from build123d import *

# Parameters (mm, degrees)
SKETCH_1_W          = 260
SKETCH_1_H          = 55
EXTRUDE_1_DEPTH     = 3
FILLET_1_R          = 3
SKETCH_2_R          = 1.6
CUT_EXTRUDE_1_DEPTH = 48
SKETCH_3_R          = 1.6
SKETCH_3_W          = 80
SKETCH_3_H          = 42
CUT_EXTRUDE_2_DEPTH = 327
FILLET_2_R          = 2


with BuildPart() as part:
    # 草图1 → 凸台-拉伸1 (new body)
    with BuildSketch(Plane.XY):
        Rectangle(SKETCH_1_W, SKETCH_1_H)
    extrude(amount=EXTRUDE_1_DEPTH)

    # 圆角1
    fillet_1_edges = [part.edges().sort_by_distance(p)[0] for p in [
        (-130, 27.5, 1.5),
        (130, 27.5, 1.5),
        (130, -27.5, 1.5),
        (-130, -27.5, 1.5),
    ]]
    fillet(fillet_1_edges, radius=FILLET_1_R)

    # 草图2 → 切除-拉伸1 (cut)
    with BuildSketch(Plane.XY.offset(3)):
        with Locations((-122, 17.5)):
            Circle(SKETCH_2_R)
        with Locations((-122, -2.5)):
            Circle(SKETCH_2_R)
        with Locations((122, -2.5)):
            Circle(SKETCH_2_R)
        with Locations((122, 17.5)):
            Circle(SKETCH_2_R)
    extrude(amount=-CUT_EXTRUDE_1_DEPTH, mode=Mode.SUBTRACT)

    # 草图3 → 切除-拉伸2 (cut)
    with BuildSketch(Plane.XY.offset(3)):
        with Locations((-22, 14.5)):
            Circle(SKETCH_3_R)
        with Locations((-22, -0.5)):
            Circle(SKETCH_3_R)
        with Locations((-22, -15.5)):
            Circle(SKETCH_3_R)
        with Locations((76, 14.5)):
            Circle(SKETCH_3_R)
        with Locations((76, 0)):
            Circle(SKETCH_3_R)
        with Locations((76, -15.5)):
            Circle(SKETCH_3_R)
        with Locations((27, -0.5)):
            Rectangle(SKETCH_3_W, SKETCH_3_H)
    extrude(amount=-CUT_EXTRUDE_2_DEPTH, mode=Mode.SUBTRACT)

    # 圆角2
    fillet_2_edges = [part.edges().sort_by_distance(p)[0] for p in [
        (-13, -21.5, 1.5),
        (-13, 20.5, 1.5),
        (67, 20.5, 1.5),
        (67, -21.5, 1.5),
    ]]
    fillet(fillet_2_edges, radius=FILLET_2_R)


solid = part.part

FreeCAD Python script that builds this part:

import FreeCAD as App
import Part
import Sketcher

V = App.Vector
Q = App.Units.Quantity


def edges_at(feature, points):
    """Names of the edges that pass closest to the given points."""
    edges = feature.Shape.Edges
    near = lambda p: min(range(len(edges)), key=lambda i: edges[i].distToShape(Part.Vertex(*p))[0])
    return sorted({f"Edge{near(p) + 1}" for p in points})

doc = App.newDocument("Part")
params = doc.addObject("Spreadsheet::Sheet", "Params")
for row, (alias, value) in enumerate([
    ("sketch1_width", "260 mm"),
    ("sketch1_height", "55 mm"),
    ("pad1_length", "3 mm"),
    ("fillet_radius", "3 mm"),
    ("sketch2_diameter", "3.2 mm"),
    ("pocket1_length", "48 mm"),
    ("sketch3_diameter", "3.2 mm"),
    ("sketch3_width", "80 mm"),
    ("sketch3_height", "42 mm"),
    ("pocket2_length", "327 mm"),
    ("fillet2_radius", "2 mm"),
], start=1):
    params.set(f"A{row}", alias)
    params.set(f"B{row}", "=" + value)
    params.setAlias(f"B{row}", alias)

body = doc.addObject("PartDesign::Body", "Body")

# Sketch on XY plane
sketch1 = body.newObject("Sketcher::SketchObject", "Sketch")
sketch1.AttachmentSupport = (doc.getObject("XY_Plane"), [""])
sketch1.MapMode = "FlatFace"
sketch1.addGeometry(Part.LineSegment(V(-130, 28, 0), V(-130, -28, 0)), False)
sketch1.addGeometry(Part.LineSegment(V(-130, -28, 0), V(130, -28, 0)), False)
sketch1.addGeometry(Part.LineSegment(V(130, -28, 0), V(130, 28, 0)), False)
sketch1.addGeometry(Part.LineSegment(V(130, 28, 0), V(-130, 28, 0)), False)
sketch1.addConstraint(Sketcher.Constraint("Coincident", 0, 2, 1, 1))
sketch1.addConstraint(Sketcher.Constraint("Coincident", 1, 2, 2, 1))
sketch1.addConstraint(Sketcher.Constraint("Coincident", 2, 2, 3, 1))
sketch1.addConstraint(Sketcher.Constraint("Coincident", 3, 2, 0, 1))
sketch1.addConstraint(Sketcher.Constraint("Vertical", 0))
sketch1.addConstraint(Sketcher.Constraint("Horizontal", 1))
sketch1.addConstraint(Sketcher.Constraint("Vertical", 2))
sketch1.addConstraint(Sketcher.Constraint("Horizontal", 3))
sketch1.addConstraint(Sketcher.Constraint("Symmetric", 0, 2, 2, 2, -1, 1))
sketch1.addConstraint(Sketcher.Constraint("DistanceX", 1, 1, 1, 2, Q("260 mm")))
sketch1.addConstraint(Sketcher.Constraint("DistanceY", 0, 2, 0, 1, Q("55 mm")))
sketch1.setExpression("Constraints[9]", "Params.sketch1_width")
sketch1.setExpression("Constraints[10]", "Params.sketch1_height")
pad1 = body.newObject("PartDesign::Pad", "Pad")
pad1.Profile = sketch1
pad1.setExpression("Length", "Params.pad1_length")
doc.recompute()

fillet = body.newObject("PartDesign::Fillet", "Fillet")
fillet.Base = (pad1, edges_at(pad1, [
    (-130, 27.5, 1.5),
    (130, 27.5, 1.5),
    (130, -27.5, 1.5),
    (-130, -27.5, 1.5),
]))
fillet.setExpression("Radius", "Params.fillet_radius")

# Sketch on XY plane
sketch2 = body.newObject("Sketcher::SketchObject", "Sketch001")
sketch2.AttachmentSupport = (doc.getObject("XY_Plane"), [""])
sketch2.MapMode = "FlatFace"
sketch2.AttachmentOffset = App.Placement(V(0, 0, 3), App.Rotation())
sketch2.addGeometry(Part.Circle(V(-122, 17.5, 0), V(0, 0, 1), 1.6), False)
sketch2.addGeometry(Part.Circle(V(-122, -2.5, 0), V(0, 0, 1), 1.6), False)
sketch2.addGeometry(Part.Circle(V(122, -2.5, 0), V(0, 0, 1), 1.6), False)
sketch2.addGeometry(Part.Circle(V(122, 17.5, 0), V(0, 0, 1), 1.6), False)
sketch2.addConstraint(Sketcher.Constraint("Equal", 0, 1))
sketch2.addConstraint(Sketcher.Constraint("Equal", 1, 2))
sketch2.addConstraint(Sketcher.Constraint("Equal", 2, 3))
sketch2.addConstraint(Sketcher.Constraint("Symmetric", 1, 3, 2, 3, -2))
sketch2.addConstraint(Sketcher.Constraint("Symmetric", 0, 3, 3, 3, -2))
sketch2.addConstraint(Sketcher.Constraint("Vertical", 0, 3, 1, 3))
sketch2.addConstraint(Sketcher.Constraint("Diameter", 0, Q("3.2 mm")))
sketch2.addConstraint(Sketcher.Constraint("DistanceX", 0, 3, -1, 1, Q("122 mm")))
sketch2.addConstraint(Sketcher.Constraint("DistanceY", 1, 3, 0, 3, Q("20 mm")))
sketch2.addConstraint(Sketcher.Constraint("DistanceY", -1, 1, 0, 3, Q("17.5 mm")))
sketch2.setExpression("Constraints[6]", "Params.sketch2_diameter")
pocket1 = body.newObject("PartDesign::Pocket", "Pocket")
pocket1.Profile = sketch2
pocket1.setExpression("Length", "Params.pocket1_length")

# Sketch on XY plane
sketch3 = body.newObject("Sketcher::SketchObject", "Sketch002")
sketch3.AttachmentSupport = (doc.getObject("XY_Plane"), [""])
sketch3.MapMode = "FlatFace"
sketch3.AttachmentOffset = App.Placement(V(0, 0, 3), App.Rotation())
sketch3.addGeometry(Part.Circle(V(-22, 14.5, 0), V(0, 0, 1), 1.6), False)
sketch3.addGeometry(Part.Circle(V(-22, -0.5, 0), V(0, 0, 1), 1.6), False)
sketch3.addGeometry(Part.Circle(V(-22, -15.5, 0), V(0, 0, 1), 1.6), False)
sketch3.addGeometry(Part.Circle(V(76, 14.5, 0), V(0, 0, 1), 1.6), False)
sketch3.addGeometry(Part.Circle(V(76, 0, 0), V(0, 0, 1), 1.6), False)
sketch3.addGeometry(Part.Circle(V(76, -15.5, 0), V(0, 0, 1), 1.6), False)
sketch3.addGeometry(Part.LineSegment(V(-13, 20.5, 0), V(-13, -21.5, 0)), False)
sketch3.addGeometry(Part.LineSegment(V(-13, -21.5, 0), V(67, -21.5, 0)), False)
sketch3.addGeometry(Part.LineSegment(V(67, -21.5, 0), V(67, 20.5, 0)), False)
sketch3.addGeometry(Part.LineSegment(V(67, 20.5, 0), V(-13, 20.5, 0)), False)
sketch3.addConstraint(Sketcher.Constraint("Coincident", 6, 2, 7, 1))
sketch3.addConstraint(Sketcher.Constraint("Coincident", 7, 2, 8, 1))
sketch3.addConstraint(Sketcher.Constraint("Coincident", 8, 2, 9, 1))
sketch3.addConstraint(Sketcher.Constraint("Coincident", 9, 2, 6, 1))
sketch3.addConstraint(Sketcher.Constraint("Vertical", 6))
sketch3.addConstraint(Sketcher.Constraint("Horizontal", 7))
sketch3.addConstraint(Sketcher.Constraint("Vertical", 8))
sketch3.addConstraint(Sketcher.Constraint("Horizontal", 9))
sketch3.addConstraint(Sketcher.Constraint("Equal", 0, 1))
sketch3.addConstraint(Sketcher.Constraint("Equal", 1, 2))
sketch3.addConstraint(Sketcher.Constraint("Equal", 2, 3))
sketch3.addConstraint(Sketcher.Constraint("Equal", 3, 4))
sketch3.addConstraint(Sketcher.Constraint("Equal", 4, 5))
sketch3.addConstraint(Sketcher.Constraint("PointOnObject", 4, 3, -1))
sketch3.addConstraint(Sketcher.Constraint("Horizontal", 0, 3, 3, 3))
sketch3.addConstraint(Sketcher.Constraint("Horizontal", 2, 3, 5, 3))
sketch3.addConstraint(Sketcher.Constraint("Vertical", 0, 3, 1, 3))
sketch3.addConstraint(Sketcher.Constraint("Vertical", 1, 3, 2, 3))
sketch3.addConstraint(Sketcher.Constraint("Vertical", 3, 3, 4, 3))
sketch3.addConstraint(Sketcher.Constraint("Vertical", 4, 3, 5, 3))
sketch3.addConstraint(Sketcher.Constraint("Diameter", 0, Q("3.2 mm")))
sketch3.addConstraint(Sketcher.Constraint("DistanceX", 7, 1, 7, 2, Q("80 mm")))
sketch3.addConstraint(Sketcher.Constraint("DistanceY", 6, 2, 6, 1, Q("42 mm")))
sketch3.addConstraint(Sketcher.Constraint("DistanceX", 0, 3, -1, 1, Q("22 mm")))
sketch3.addConstraint(Sketcher.Constraint("DistanceX", -1, 1, 3, 3, Q("76 mm")))
sketch3.addConstraint(Sketcher.Constraint("DistanceX", 6, 2, -1, 1, Q("13 mm")))
sketch3.addConstraint(Sketcher.Constraint("DistanceY", 1, 3, 0, 3, Q("15 mm")))
sketch3.addConstraint(Sketcher.Constraint("DistanceY", 2, 3, 1, 3, Q("15 mm")))
sketch3.addConstraint(Sketcher.Constraint("DistanceY", 6, 2, 2, 3, Q("6 mm")))
sketch3.addConstraint(Sketcher.Constraint("DistanceY", -1, 1, 0, 3, Q("14.5 mm")))
sketch3.setExpression("Constraints[20]", "Params.sketch3_diameter")
sketch3.setExpression("Constraints[21]", "Params.sketch3_width")
sketch3.setExpression("Constraints[22]", "Params.sketch3_height")
pocket2 = body.newObject("PartDesign::Pocket", "Pocket001")
pocket2.Profile = sketch3
pocket2.setExpression("Length", "Params.pocket2_length")
doc.recompute()

fillet2 = body.newObject("PartDesign::Fillet", "Fillet001")
fillet2.Base = (pocket2, edges_at(pocket2, [
    (-13, -21.5, 1.5),
    (-13, 20.5, 1.5),
    (67, 20.5, 1.5),
    (67, -21.5, 1.5),
]))
fillet2.setExpression("Radius", "Params.fillet2_radius")

doc.recompute()
